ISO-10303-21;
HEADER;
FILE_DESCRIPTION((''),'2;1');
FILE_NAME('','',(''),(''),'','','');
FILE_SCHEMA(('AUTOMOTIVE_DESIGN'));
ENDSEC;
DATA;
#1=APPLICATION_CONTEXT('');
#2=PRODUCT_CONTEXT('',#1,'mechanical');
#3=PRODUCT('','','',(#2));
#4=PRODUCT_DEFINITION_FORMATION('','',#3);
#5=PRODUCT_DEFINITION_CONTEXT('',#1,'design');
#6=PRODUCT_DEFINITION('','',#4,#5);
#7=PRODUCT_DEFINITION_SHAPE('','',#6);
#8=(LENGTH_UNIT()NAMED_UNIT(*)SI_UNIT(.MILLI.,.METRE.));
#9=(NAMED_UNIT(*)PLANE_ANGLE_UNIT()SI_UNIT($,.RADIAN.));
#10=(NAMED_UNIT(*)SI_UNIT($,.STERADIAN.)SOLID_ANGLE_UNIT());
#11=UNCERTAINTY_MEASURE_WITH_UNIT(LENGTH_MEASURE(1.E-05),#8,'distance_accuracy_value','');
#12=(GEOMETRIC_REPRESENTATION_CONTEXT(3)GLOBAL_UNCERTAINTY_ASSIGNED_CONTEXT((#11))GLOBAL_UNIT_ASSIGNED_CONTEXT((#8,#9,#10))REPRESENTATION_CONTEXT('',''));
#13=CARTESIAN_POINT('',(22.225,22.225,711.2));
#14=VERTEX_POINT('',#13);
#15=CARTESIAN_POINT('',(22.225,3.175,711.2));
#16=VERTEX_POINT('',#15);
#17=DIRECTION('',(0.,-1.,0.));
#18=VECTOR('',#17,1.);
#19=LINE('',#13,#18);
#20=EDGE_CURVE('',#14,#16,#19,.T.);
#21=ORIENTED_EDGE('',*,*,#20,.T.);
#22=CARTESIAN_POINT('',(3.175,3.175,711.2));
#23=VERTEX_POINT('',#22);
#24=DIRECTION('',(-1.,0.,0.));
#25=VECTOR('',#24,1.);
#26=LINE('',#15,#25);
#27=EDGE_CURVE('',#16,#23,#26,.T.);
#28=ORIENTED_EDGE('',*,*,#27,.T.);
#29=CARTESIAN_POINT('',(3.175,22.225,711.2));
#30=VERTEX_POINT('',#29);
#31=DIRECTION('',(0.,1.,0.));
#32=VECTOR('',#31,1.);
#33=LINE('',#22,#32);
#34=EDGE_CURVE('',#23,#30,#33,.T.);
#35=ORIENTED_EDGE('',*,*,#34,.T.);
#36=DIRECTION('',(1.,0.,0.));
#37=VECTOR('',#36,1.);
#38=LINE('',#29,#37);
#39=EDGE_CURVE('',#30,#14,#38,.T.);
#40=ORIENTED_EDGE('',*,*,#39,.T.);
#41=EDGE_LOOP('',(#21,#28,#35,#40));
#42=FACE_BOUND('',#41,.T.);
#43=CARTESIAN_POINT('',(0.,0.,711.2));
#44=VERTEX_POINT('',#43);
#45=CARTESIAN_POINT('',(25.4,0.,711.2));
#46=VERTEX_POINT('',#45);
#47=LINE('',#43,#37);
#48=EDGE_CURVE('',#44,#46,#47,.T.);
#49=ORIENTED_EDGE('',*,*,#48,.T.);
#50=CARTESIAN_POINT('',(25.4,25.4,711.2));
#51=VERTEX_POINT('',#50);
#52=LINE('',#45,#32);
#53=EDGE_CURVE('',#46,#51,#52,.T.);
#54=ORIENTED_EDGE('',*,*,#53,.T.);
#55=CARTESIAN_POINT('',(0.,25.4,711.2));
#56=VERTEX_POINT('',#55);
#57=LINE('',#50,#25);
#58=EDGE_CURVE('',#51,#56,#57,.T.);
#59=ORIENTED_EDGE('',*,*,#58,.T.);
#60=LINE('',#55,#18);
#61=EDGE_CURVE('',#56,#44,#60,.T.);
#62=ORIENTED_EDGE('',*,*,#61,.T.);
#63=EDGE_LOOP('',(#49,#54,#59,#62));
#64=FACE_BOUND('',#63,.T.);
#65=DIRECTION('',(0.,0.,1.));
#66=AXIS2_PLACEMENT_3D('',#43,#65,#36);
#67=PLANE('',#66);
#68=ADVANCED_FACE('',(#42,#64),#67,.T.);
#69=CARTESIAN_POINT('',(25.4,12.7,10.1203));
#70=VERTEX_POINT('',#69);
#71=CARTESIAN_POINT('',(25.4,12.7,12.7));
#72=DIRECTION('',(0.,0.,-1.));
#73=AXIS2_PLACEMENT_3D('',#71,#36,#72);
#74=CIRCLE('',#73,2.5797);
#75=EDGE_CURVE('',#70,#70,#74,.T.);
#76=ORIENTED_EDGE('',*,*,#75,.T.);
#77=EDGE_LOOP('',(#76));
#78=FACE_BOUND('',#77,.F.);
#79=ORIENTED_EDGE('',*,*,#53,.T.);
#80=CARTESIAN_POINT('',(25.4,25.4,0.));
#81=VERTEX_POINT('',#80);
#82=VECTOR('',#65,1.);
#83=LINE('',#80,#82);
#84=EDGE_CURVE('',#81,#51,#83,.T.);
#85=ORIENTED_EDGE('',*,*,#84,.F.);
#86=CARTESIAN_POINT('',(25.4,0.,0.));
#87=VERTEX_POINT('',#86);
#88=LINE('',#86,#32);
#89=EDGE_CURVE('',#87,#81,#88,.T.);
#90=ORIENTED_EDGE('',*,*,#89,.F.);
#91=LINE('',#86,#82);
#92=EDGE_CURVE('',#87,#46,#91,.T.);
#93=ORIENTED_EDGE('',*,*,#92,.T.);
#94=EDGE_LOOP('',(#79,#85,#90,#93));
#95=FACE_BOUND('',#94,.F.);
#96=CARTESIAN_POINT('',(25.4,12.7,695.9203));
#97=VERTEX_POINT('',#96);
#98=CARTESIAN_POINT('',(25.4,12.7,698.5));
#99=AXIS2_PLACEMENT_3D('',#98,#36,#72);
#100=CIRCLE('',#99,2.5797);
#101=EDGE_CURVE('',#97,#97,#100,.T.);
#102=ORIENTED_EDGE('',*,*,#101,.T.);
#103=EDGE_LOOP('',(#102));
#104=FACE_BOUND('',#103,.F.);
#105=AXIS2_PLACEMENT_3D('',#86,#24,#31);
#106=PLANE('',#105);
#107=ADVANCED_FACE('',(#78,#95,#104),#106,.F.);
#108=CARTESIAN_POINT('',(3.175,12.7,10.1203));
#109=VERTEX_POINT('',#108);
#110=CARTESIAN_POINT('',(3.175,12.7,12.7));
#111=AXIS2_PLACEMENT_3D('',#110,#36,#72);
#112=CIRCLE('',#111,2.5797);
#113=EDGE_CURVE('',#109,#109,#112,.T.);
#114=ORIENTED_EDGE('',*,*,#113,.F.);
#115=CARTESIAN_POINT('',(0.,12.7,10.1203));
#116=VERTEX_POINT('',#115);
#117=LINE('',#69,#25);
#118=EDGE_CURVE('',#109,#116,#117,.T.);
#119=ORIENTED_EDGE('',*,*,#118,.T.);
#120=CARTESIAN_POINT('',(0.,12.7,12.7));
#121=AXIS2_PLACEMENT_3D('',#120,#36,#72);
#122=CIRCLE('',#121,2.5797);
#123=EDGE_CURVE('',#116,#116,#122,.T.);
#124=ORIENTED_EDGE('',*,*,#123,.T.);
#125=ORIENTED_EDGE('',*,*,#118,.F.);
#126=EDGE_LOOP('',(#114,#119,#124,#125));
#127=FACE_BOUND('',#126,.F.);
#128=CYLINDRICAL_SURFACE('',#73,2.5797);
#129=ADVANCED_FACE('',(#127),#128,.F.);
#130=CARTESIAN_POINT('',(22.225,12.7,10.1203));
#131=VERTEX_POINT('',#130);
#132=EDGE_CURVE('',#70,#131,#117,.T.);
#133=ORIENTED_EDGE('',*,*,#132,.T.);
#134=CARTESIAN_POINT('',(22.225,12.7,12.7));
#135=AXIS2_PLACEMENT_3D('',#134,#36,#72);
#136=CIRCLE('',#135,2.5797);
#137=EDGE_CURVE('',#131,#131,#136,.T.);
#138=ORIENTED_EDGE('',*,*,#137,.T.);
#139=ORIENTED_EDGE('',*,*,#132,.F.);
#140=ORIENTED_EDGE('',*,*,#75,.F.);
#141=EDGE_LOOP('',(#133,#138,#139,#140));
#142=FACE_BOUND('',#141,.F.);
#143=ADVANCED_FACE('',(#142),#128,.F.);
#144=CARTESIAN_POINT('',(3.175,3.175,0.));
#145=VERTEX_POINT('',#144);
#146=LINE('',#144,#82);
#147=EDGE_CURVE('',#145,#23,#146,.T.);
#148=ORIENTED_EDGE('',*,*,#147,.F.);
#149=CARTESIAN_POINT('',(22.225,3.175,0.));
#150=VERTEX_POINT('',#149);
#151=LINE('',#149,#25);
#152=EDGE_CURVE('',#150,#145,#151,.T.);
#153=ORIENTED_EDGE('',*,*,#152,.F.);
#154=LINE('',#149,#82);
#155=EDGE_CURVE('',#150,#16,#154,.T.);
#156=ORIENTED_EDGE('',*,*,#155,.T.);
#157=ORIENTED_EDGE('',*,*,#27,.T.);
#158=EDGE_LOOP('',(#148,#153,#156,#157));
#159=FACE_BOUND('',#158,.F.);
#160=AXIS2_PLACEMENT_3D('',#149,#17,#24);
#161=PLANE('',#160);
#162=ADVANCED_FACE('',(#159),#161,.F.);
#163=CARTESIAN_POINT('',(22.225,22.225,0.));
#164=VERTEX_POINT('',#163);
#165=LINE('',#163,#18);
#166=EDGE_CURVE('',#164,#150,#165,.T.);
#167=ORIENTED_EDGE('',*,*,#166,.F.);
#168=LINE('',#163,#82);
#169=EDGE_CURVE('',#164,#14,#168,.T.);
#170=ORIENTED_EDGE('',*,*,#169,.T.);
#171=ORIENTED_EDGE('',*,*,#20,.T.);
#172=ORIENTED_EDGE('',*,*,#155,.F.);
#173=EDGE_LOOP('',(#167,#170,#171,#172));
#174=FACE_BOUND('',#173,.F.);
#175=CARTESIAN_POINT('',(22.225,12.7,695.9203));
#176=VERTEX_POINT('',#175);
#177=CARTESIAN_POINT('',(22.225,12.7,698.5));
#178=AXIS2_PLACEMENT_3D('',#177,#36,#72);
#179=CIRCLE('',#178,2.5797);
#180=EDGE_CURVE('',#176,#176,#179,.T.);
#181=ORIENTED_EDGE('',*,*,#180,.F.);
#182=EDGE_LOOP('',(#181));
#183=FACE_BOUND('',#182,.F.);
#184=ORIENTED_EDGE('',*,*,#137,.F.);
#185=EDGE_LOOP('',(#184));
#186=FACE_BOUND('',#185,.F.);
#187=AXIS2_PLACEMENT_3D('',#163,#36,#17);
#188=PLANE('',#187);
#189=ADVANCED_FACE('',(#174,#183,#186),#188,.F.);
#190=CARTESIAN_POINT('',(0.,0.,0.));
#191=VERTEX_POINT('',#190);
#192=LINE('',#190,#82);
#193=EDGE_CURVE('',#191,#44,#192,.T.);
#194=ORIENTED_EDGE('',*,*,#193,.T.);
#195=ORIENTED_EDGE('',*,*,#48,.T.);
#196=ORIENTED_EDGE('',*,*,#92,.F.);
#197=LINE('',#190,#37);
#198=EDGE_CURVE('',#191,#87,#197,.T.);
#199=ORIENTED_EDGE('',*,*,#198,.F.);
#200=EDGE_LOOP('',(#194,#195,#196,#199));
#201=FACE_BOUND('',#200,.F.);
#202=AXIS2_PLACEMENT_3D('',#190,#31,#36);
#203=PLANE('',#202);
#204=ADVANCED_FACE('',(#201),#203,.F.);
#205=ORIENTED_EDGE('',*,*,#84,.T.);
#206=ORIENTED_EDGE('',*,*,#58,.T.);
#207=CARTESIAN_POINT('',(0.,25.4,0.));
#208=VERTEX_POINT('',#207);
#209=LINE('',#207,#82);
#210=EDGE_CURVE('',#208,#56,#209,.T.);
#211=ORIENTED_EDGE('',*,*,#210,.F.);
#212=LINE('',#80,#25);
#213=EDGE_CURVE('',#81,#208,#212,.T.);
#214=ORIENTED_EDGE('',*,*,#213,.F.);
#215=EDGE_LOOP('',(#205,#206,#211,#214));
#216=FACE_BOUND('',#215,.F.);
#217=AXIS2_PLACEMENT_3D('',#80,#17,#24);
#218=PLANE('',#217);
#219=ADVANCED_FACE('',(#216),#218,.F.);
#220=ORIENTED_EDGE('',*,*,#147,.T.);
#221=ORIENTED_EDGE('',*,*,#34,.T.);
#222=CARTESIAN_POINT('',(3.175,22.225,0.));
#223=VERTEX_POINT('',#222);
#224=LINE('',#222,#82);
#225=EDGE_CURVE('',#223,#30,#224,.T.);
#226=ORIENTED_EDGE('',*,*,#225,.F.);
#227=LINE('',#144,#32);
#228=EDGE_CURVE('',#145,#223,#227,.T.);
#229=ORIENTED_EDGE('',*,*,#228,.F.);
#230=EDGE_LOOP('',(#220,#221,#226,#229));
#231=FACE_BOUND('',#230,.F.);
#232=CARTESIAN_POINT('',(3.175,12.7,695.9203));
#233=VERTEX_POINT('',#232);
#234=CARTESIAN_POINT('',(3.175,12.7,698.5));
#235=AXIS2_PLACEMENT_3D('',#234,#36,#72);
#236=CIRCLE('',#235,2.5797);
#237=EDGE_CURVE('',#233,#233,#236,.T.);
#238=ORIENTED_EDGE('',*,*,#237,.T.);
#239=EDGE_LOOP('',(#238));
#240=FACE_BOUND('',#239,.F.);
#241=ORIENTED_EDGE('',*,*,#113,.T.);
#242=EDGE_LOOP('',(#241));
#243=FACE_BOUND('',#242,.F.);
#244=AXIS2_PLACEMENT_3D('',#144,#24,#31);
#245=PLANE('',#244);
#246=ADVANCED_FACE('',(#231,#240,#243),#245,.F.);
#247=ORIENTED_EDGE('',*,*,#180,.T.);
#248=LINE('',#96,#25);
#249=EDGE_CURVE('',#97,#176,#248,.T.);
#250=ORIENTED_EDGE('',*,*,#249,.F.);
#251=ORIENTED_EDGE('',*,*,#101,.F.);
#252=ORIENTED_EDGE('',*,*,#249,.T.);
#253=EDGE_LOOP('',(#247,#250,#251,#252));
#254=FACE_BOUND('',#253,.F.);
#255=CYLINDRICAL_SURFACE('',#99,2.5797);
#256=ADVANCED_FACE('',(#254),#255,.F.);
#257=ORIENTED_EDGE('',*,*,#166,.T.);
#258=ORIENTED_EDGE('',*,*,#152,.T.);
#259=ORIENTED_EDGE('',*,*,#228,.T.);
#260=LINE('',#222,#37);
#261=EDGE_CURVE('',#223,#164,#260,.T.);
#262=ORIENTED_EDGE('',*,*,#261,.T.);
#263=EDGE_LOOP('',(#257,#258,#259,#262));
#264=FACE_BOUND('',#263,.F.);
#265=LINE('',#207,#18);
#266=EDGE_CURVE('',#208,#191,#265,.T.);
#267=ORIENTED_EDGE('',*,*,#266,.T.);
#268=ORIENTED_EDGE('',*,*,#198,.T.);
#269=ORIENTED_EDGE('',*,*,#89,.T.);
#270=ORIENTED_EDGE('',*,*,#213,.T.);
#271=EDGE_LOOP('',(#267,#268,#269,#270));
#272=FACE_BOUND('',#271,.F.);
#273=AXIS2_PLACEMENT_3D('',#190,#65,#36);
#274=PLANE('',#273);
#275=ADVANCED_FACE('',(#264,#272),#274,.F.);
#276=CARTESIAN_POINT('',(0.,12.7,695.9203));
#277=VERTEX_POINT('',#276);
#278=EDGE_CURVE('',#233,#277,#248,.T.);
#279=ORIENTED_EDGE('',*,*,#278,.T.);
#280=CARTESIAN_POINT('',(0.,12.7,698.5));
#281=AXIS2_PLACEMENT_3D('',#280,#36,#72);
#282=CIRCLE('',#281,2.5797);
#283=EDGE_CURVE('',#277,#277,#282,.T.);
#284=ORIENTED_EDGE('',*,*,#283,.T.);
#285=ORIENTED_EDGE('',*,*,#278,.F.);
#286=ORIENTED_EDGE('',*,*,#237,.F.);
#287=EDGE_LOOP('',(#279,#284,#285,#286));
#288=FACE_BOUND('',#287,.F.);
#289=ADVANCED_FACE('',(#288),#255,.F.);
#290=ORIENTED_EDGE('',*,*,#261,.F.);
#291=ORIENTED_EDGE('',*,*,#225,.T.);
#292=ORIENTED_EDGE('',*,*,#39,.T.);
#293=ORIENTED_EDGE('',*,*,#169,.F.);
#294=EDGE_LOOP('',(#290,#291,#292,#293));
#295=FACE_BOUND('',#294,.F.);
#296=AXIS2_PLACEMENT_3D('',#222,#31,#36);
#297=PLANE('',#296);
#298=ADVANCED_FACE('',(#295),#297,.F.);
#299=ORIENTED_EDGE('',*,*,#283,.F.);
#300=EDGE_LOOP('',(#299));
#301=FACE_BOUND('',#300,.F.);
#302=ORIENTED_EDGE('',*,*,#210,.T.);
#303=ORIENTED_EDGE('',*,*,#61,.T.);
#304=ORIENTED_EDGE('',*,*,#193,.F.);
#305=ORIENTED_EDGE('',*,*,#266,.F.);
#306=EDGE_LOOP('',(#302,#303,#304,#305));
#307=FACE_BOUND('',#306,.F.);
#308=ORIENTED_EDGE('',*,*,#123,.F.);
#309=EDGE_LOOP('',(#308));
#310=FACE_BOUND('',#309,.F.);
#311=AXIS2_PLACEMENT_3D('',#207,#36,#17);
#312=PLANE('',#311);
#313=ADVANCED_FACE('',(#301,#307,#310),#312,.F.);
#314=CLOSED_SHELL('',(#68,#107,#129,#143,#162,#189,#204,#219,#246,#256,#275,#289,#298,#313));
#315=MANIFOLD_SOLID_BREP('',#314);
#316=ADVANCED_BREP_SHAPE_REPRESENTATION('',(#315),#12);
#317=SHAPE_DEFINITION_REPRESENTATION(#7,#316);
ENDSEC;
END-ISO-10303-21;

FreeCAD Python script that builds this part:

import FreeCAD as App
import Part
import Sketcher
Q = App.Units.Quantity


def add_polygon(sketch, points):
    """Adds a closed chain of lines whose ends are joined by coincident constraints."""
    first, n = sketch.GeometryCount, len(points)
    for a, b in zip(points, points[1:] + points[:1]):
        sketch.addGeometry(Part.LineSegment(App.Vector(*a, 0), App.Vector(*b, 0)), False)
    for i in range(n):
        sketch.addConstraint(Sketcher.Constraint("Coincident", first + i, 2, first + (i + 1) % n, 1))

doc = App.newDocument("Part")
body = doc.addObject("PartDesign::Body", "Body")

sketch1 = body.newObject("Sketcher::SketchObject", "Sketch")
sketch1.AttachmentSupport = (doc.getObject("XY_Plane"), [""])
sketch1.MapMode = "FlatFace"
add_polygon(sketch1, [(0, 25), (0, 0), (25, 0), (25, 25)])
add_polygon(sketch1, [(3, 3), (3, 22), (22, 22), (22, 3)])
sketch1.addConstraint(Sketcher.Constraint("Vertical", 0))
sketch1.addConstraint(Sketcher.Constraint("Horizontal", 1))
sketch1.addConstraint(Sketcher.Constraint("Vertical", 2))
sketch1.addConstraint(Sketcher.Constraint("Horizontal", 3))
sketch1.addConstraint(Sketcher.Constraint("Vertical", 4))
sketch1.addConstraint(Sketcher.Constraint("Horizontal", 5))
sketch1.addConstraint(Sketcher.Constraint("Vertical", 6))
sketch1.addConstraint(Sketcher.Constraint("Horizontal", 7))
sketch1.addConstraint(Sketcher.Constraint("Coincident", 0, 2, -1, 1))
sketch1.addConstraint(Sketcher.Constraint("Equal", 3, 0))
sketch1.addConstraint(Sketcher.Constraint("Equal", 7, 4))
sketch1.addConstraint(Sketcher.Constraint("DistanceX", 1, 1, 1, 2, Q("1 in")))
sketch1.addConstraint(Sketcher.Constraint("DistanceX", -1, 1, 4, 2, Q("0.125 in")))
sketch1.addConstraint(Sketcher.Constraint("DistanceY", -1, 1, 6, 2, Q("0.125 in")))
sketch1.addConstraint(Sketcher.Constraint("DistanceY", 4, 2, 3, 2, Q("0.125 in")))
pad1 = body.newObject("PartDesign::Pad", "Pad")
pad1.Profile = sketch1
pad1.Length = Q("28 in")

sketch2 = body.newObject("Sketcher::SketchObject", "Sketch001")
sketch2.AttachmentSupport = (doc.getObject("YZ_Plane"), [""])
sketch2.MapMode = "FlatFace"
sketch2.AttachmentOffset = App.Placement(App.Vector(0, 0, 1 * 25.4), App.Rotation())
sketch2.addGeometry(Part.Circle(App.Vector(12.7, 698.5, 0), App.Vector(0, 0, 1), 2.6), False)
sketch2.addGeometry(Part.Circle(App.Vector(12.7, 12.7, 0), App.Vector(0, 0, 1), 2.6), False)
sketch2.addConstraint(Sketcher.Constraint("Equal", 0, 1))
sketch2.addConstraint(Sketcher.Constraint("Vertical", 0, 3, 1, 3))
sketch2.addConstraint(Sketcher.Constraint("Diameter", 0, Q("0.203126 in")))
sketch2.addConstraint(Sketcher.Constraint("DistanceX", -1, 1, 0, 3, Q("0.5 in")))
sketch2.addConstraint(Sketcher.Constraint("DistanceY", -1, 1, 1, 3, Q("0.5 in")))
sketch2.addConstraint(Sketcher.Constraint("DistanceY", 1, 3, 0, 3, Q("27 in")))
pocket1 = body.newObject("PartDesign::Pocket", "Pocket")
pocket1.Profile = sketch2
pocket1.Length = Q("1 in")

doc.recompute()
